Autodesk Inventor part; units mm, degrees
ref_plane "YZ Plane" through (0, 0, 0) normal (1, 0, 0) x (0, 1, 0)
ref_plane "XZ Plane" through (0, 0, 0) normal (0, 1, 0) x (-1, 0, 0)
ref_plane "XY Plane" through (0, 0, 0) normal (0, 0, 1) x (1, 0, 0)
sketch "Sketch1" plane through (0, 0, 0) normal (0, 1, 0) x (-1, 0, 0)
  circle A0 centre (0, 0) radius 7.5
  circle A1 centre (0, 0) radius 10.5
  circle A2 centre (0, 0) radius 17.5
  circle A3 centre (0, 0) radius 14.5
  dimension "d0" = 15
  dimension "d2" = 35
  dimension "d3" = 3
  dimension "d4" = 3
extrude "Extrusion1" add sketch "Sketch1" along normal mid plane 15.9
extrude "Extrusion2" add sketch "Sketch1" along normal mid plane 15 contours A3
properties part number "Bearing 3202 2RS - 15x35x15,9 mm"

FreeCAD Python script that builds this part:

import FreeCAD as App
import Part
import Sketcher

V = App.Vector

doc = App.newDocument("Part")
body = doc.addObject("PartDesign::Body", "Body")
body.AllowCompound = True

# Sketch on XZ plane
sketch1 = doc.addObject("Sketcher::SketchObject", "Sketch")
body.addObject(sketch1)
sketch1.AttachmentSupport = (doc.XZ_Plane, [""])
sketch1.MapMode = "FlatFace"
sketch1.addGeometry(Part.Circle(V(0, 0, 0), V(0, 0, 1), 10), False)
sketch1.addGeometry(Part.Circle(V(0, 0, 0), V(0, 0, 1), 8), False)
sketch1.addGeometry(Part.Circle(V(0, 0, 0), V(0, 0, 1), 18), False)
sketch1.addGeometry(Part.Circle(V(0, 0, 0), V(0, 0, 1), 14), False)
sketch1.addConstraint(Sketcher.Constraint("Coincident", 0, 3, -1, 1))
sketch1.addConstraint(Sketcher.Constraint("Coincident", 1, 3, -1, 1))
sketch1.addConstraint(Sketcher.Constraint("Coincident", 2, 3, -1, 1))
sketch1.addConstraint(Sketcher.Constraint("Coincident", 3, 3, -1, 1))
sketch1.addConstraint(Sketcher.Constraint("Diameter", 1, 15.0))
sketch1.addConstraint(Sketcher.Constraint("Diameter", 2, 35.0))
sketch1.addConstraint(Sketcher.Constraint("Diameter", 0, 21.0))
sketch1.addConstraint(Sketcher.Constraint("Diameter", 3, 29.0))
pad1 = doc.addObject("PartDesign::Pad", "Pad")
body.addObject(pad1)
pad1.Profile = sketch1
pad1.Length = 15.9
pad1.Midplane = True

# Sketch on XZ plane
sketch2 = doc.addObject("Sketcher::SketchObject", "Sketch001")
body.addObject(sketch2)
sketch2.AttachmentSupport = (doc.XZ_Plane, [""])
sketch2.MapMode = "FlatFace"
sketch2.addGeometry(Part.Circle(V(0, 0, 0), V(0, 0, 1), 14), False)
sketch2.addGeometry(Part.Circle(V(0, 0, 0), V(0, 0, 1), 10), False)
sketch2.addConstraint(Sketcher.Constraint("Coincident", 0, 3, -1, 1))
sketch2.addConstraint(Sketcher.Constraint("Coincident", 1, 3, -1, 1))
sketch2.addConstraint(Sketcher.Constraint("Diameter", 0, 29.0))
sketch2.addConstraint(Sketcher.Constraint("Diameter", 1, 21.0))
pad2 = doc.addObject("PartDesign::Pad", "Pad001")
body.addObject(pad2)
pad2.Profile = sketch2
pad2.Length = 15
pad2.Midplane = True

doc.recompute()
